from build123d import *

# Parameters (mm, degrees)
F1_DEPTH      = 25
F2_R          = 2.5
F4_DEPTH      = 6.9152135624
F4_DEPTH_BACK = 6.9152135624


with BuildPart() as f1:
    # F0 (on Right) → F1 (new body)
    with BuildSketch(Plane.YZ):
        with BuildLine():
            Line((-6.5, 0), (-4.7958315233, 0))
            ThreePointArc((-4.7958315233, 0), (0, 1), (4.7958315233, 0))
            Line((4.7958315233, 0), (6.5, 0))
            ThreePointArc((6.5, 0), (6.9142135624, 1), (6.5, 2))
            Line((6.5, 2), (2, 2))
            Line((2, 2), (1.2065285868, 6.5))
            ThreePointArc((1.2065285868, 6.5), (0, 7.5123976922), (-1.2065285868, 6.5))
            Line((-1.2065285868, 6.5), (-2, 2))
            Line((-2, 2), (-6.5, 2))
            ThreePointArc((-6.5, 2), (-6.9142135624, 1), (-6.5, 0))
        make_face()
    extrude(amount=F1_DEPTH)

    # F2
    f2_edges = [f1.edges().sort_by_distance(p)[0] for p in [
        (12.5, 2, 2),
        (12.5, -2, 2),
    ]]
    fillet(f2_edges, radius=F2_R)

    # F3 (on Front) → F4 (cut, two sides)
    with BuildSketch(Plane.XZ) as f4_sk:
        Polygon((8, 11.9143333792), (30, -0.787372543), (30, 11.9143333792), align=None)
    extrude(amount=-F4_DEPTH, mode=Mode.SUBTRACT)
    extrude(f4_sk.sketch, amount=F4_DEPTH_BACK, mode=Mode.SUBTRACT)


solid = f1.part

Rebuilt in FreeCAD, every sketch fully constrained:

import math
import FreeCAD as App
import Part
import Sketcher
from FreeCAD import Vector
Q = App.Units.Quantity


def edges_at(feature, points):
    """Names of the edges that pass closest to the given points."""
    edges = feature.Shape.Edges
    near = lambda p: min(range(len(edges)), key=lambda i: edges[i].distToShape(Part.Vertex(*p))[0])
    return sorted({f"Edge{near(p) + 1}" for p in points})


def add_polygon(sketch, points):
    """Adds a closed chain of lines whose ends are joined by coincident constraints."""
    first, n = sketch.GeometryCount, len(points)
    for a, b in zip(points, points[1:] + points[:1]):
        sketch.addGeometry(Part.LineSegment(App.Vector(*a, 0), App.Vector(*b, 0)), False)
    for i in range(n):
        sketch.addConstraint(Sketcher.Constraint("Coincident", first + i, 2, first + (i + 1) % n, 1))

doc = App.newDocument("Part")
params = doc.addObject("Spreadsheet::Sheet", "Params")
for row, (alias, value) in enumerate([
    ("sketch1_radius", "12 mm"),
    ("sketch1_width", "4.5 mm"),
    ("pad1_length", "25 mm"),
    ("fillet_radius", "2.5 mm"),
    ("sketch2_width", "22 mm"),
], start=1):
    params.set(f"A{row}", alias)
    params.set(f"B{row}", "=" + value)
    params.setAlias(f"B{row}", alias)

body = doc.addObject("PartDesign::Body", "Body")

# Sketch on YZ plane
sketch1 = body.newObject("Sketcher::SketchObject", "Sketch")
sketch1.AttachmentSupport = (doc.getObject("YZ_Plane"), [""])
sketch1.MapMode = "FlatFace"
sketch1.addGeometry([
    Part.LineSegment(Vector(-6.5, 0, 0), Vector(-4.8, 0, 0)),  # 0
    Part.ArcOfCircle(Part.Circle(Vector(0, -11, 0), Vector(0, 0, 1), 12), math.radians(66), math.radians(114)),  # 1
    Part.LineSegment(Vector(4.8, 0, 0), Vector(6.5, 0, 0)),  # 2
    Part.ArcOfCircle(Part.Circle(Vector(5.5, 1, 0), Vector(0, 0, 1), 1.4), math.radians(-45), math.radians(45)),  # 3
    Part.LineSegment(Vector(6.5, 2, 0), Vector(2, 2, 0)),  # 4
    Part.LineSegment(Vector(2, 2, 0), Vector(1.2, 6.5, 0)),  # 5
    Part.ArcOfCircle(Part.Circle(Vector(0, 6.3, 0), Vector(0, 0, 1), 1.2), math.radians(10), math.radians(170)),  # 6
    Part.LineSegment(Vector(-1.2, 6.5, 0), Vector(-2, 2, 0)),  # 7
    Part.LineSegment(Vector(-2, 2, 0), Vector(-6.5, 2, 0)),  # 8
    Part.ArcOfCircle(Part.Circle(Vector(-5.5, 1, 0), Vector(0, 0, 1), 1.4), math.radians(135), math.radians(225)),  # 9
], False)
sketch1.addConstraint([
    Sketcher.Constraint("Coincident", 0, 2, 1, 2),
    Sketcher.Constraint("Coincident", 1, 1, 2, 1),
    Sketcher.Constraint("Coincident", 2, 2, 3, 1),
    Sketcher.Constraint("Coincident", 3, 2, 4, 1),
    Sketcher.Constraint("Coincident", 4, 2, 5, 1),
    Sketcher.Constraint("Tangent", 5, 2, 6, 1),
    Sketcher.Constraint("Tangent", 6, 2, 7, 1),
    Sketcher.Constraint("Coincident", 7, 2, 8, 1),
    Sketcher.Constraint("Coincident", 8, 2, 9, 1),
    Sketcher.Constraint("Coincident", 9, 2, 0, 1),
    Sketcher.Constraint("Horizontal", 0),
    Sketcher.Constraint("Horizontal", 2),
    Sketcher.Constraint("Horizontal", 4),
    Sketcher.Constraint("Horizontal", 8),
    Sketcher.Constraint("Equal", 3, 9),
    Sketcher.Constraint("Symmetric", 0, 2, 1, 1, -1, 1),
    Sketcher.Constraint("Symmetric", 3, 3, 9, 3, -2),
    Sketcher.Constraint("Symmetric", 5, 2, 6, 2, -2),
    Sketcher.Constraint("PointOnObject", 1, 3, -2),
    Sketcher.Constraint("Horizontal", 4, 2, 7, 2),
    Sketcher.Constraint("Vertical", 2, 2, 3, 2),
    Sketcher.Constraint("Radius", 1, 12.0),
    Sketcher.Constraint("Angle", 5, Q("100 deg")),
    Sketcher.Constraint("DistanceX", 4, 2, 4, 1, 4.5),
    Sketcher.Constraint("DistanceY", 1, 3, -1, 1, 11.0),
    Sketcher.Constraint("DistanceY", -1, 1, 3, 3, 1.0),
    Sketcher.Constraint("DistanceX", -1, 1, 4, 2, 2.0),
    Sketcher.Constraint("DistanceX", 9, 3, 3, 3, 11.0),
    Sketcher.Constraint("DistanceY", -1, 1, 5, 2, 6.5),
])
sketch1.setExpression("Constraints[21]", "Params.sketch1_radius")
sketch1.setExpression("Constraints[23]", "Params.sketch1_width")
pad1 = body.newObject("PartDesign::Pad", "Pad")
pad1.Profile = sketch1
pad1.setExpression("Length", "Params.pad1_length")
doc.recompute()

fillet = body.newObject("PartDesign::Fillet", "Fillet")
fillet.Base = (pad1, edges_at(pad1, [(12.5, 2, 2), (12.5, -2, 2)]))
fillet.setExpression("Radius", "Params.fillet_radius")

# Sketch on XZ plane
sketch2 = body.newObject("Sketcher::SketchObject", "Sketch001")
sketch2.AttachmentSupport = (doc.getObject("XZ_Plane"), [""])
sketch2.MapMode = "FlatFace"
add_polygon(sketch2, [(8, 12), (30, -1), (30, 12)])  # lines 0-2
sketch2.addConstraint([
    Sketcher.Constraint("Vertical", 1),
    Sketcher.Constraint("Horizontal", 2),
    Sketcher.Constraint("DistanceX", 2, 2, 2, 1, 22.0),
    Sketcher.Constraint("Angle", 0, Q("-30 deg")),
    Sketcher.Constraint("DistanceX", -1, 1, 0, 2, 30.0),
    Sketcher.Constraint("DistanceY", 0, 2, -1, 1, 0.787373),
])
sketch2.setExpression("Constraints[5]", "Params.sketch2_width")
pocket1 = body.newObject("PartDesign::Pocket", "Pocket")
pocket1.Profile = sketch2
pocket1.Type = "ThroughAll"
pocket1.Midplane = True

doc.recompute()
